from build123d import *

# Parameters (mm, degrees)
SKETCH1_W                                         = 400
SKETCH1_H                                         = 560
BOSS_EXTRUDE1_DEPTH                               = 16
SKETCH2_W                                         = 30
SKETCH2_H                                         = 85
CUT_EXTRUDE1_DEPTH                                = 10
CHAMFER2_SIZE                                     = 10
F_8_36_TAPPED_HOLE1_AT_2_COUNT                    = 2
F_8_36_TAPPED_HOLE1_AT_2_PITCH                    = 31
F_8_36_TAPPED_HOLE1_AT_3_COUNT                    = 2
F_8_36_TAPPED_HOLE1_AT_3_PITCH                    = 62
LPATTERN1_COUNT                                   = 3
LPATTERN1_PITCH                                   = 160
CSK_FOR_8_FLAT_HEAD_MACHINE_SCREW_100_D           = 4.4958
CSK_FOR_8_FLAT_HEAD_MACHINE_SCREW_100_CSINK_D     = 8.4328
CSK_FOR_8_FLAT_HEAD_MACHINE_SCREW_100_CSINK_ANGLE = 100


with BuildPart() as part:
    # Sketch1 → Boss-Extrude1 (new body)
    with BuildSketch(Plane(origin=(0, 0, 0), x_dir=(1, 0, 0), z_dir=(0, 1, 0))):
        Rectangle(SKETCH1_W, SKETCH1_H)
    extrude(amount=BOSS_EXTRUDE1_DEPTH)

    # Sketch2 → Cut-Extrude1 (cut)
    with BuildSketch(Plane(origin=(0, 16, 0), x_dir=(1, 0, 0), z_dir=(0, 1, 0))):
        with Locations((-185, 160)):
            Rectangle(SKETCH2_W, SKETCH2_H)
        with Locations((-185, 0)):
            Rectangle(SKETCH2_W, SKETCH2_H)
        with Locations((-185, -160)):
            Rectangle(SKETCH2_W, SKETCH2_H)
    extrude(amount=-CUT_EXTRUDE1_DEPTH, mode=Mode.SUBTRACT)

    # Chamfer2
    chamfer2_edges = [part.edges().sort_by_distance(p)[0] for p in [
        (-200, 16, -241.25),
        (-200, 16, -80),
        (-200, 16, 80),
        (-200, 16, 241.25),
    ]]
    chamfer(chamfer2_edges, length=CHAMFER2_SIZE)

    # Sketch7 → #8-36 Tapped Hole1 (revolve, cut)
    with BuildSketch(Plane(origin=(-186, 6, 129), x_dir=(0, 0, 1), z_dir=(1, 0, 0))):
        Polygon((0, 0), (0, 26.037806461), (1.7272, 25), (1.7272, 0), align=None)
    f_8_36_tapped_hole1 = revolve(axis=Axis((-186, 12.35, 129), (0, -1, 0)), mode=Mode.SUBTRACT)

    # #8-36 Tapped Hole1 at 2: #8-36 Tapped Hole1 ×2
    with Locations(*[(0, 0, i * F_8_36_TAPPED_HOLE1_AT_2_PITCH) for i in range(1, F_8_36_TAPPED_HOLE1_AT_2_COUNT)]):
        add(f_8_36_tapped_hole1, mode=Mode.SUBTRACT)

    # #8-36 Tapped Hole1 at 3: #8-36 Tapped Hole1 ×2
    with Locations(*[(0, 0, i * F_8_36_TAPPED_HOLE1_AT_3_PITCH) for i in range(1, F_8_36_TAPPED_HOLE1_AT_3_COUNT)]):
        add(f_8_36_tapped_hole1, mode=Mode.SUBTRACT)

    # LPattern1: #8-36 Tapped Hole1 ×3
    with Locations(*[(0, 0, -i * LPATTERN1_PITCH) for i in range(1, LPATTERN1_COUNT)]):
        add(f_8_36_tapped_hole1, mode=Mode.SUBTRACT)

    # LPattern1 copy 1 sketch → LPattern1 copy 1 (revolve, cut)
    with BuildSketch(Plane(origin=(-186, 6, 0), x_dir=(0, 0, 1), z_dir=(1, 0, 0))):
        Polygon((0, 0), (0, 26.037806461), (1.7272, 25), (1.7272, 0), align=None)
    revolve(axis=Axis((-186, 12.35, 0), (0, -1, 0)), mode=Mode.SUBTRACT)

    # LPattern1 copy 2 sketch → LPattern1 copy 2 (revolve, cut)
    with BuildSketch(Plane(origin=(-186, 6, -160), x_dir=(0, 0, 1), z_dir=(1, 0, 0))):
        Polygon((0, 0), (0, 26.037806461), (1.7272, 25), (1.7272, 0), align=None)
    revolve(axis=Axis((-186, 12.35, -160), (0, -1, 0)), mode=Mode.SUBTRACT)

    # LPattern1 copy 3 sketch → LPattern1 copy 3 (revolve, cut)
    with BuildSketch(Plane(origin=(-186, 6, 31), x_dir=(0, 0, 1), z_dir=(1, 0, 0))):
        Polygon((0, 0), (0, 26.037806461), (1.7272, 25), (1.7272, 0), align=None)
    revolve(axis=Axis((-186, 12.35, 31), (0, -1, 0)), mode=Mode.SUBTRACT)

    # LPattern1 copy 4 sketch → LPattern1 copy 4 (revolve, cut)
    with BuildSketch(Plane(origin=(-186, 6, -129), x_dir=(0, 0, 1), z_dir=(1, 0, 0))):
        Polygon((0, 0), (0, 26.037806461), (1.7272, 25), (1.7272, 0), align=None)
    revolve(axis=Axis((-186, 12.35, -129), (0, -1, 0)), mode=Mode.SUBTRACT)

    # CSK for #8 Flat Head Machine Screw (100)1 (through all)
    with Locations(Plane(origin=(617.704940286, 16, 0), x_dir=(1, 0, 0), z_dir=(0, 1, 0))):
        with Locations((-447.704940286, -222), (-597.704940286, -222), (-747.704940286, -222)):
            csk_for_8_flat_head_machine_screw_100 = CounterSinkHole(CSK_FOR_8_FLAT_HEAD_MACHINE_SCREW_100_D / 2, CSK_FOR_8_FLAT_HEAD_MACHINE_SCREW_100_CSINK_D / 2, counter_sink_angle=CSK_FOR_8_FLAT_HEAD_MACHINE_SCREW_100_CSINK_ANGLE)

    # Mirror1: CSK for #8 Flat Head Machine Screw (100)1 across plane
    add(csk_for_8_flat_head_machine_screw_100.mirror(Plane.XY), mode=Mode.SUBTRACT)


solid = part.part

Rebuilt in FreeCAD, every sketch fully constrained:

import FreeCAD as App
import Part
import Sketcher
Q = App.Units.Quantity


def edges_at(feature, points):
    """Names of the edges that pass closest to the given points."""
    edges = feature.Shape.Edges
    near = lambda p: min(range(len(edges)), key=lambda i: edges[i].distToShape(Part.Vertex(*p))[0])
    return sorted({f"Edge{near(p) + 1}" for p in points})

doc = App.newDocument("Part")
body = doc.addObject("PartDesign::Body", "Body")

# Sketch on XZ plane
sketch1 = body.newObject("Sketcher::SketchObject", "Sketch")
sketch1.AttachmentSupport = (doc.getObject("XZ_Plane"), [""])
sketch1.MapMode = "FlatFace"
sketch1.addGeometry(Part.LineSegment(App.Vector(-200, -280, 0), App.Vector(-200, 280, 0)), False)
sketch1.addGeometry(Part.LineSegment(App.Vector(-200, 280, 0), App.Vector(200, 280, 0)), False)
sketch1.addGeometry(Part.LineSegment(App.Vector(200, 280, 0), App.Vector(200, -280, 0)), False)
sketch1.addGeometry(Part.LineSegment(App.Vector(200, -280, 0), App.Vector(-200, -280, 0)), False)
sketch1.addConstraint(Sketcher.Constraint("Coincident", 0, 2, 1, 1))
sketch1.addConstraint(Sketcher.Constraint("Coincident", 1, 2, 2, 1))
sketch1.addConstraint(Sketcher.Constraint("Coincident", 2, 2, 3, 1))
sketch1.addConstraint(Sketcher.Constraint("Coincident", 3, 2, 0, 1))
sketch1.addConstraint(Sketcher.Constraint("Vertical", 0))
sketch1.addConstraint(Sketcher.Constraint("Horizontal", 1))
sketch1.addConstraint(Sketcher.Constraint("Vertical", 2))
sketch1.addConstraint(Sketcher.Constraint("Horizontal", 3))
sketch1.addConstraint(Sketcher.Constraint("Symmetric", 0, 2, 2, 2, -1, 1))
sketch1.addConstraint(Sketcher.Constraint("DistanceX", 1, 1, 1, 2, 400.0))
sketch1.addConstraint(Sketcher.Constraint("DistanceY", 0, 1, 0, 2, 560.0))
pad1 = body.newObject("PartDesign::Pad", "Pad")
pad1.Profile = sketch1
pad1.Length = 16
pad1.Reversed = True

# Sketch on XZ plane
sketch2 = body.newObject("Sketcher::SketchObject", "Sketch001")
sketch2.AttachmentSupport = (doc.getObject("XZ_Plane"), [""])
sketch2.MapMode = "FlatFace"
sketch2.AttachmentOffset = App.Placement(App.Vector(0, 0, -16), App.Rotation())
sketch2.addGeometry(Part.LineSegment(App.Vector(-200, -202, 0), App.Vector(-200, -118, 0)), False)
sketch2.addGeometry(Part.LineSegment(App.Vector(-200, -118, 0), App.Vector(-170, -118, 0)), False)
sketch2.addGeometry(Part.LineSegment(App.Vector(-170, -118, 0), App.Vector(-170, -202, 0)), False)
sketch2.addGeometry(Part.LineSegment(App.Vector(-170, -202, 0), App.Vector(-200, -202, 0)), False)
sketch2.addGeometry(Part.LineSegment(App.Vector(-200, -42, 0), App.Vector(-200, 42, 0)), False)
sketch2.addGeometry(Part.LineSegment(App.Vector(-200, 42, 0), App.Vector(-170, 42, 0)), False)
sketch2.addGeometry(Part.LineSegment(App.Vector(-170, 42, 0), App.Vector(-170, -42, 0)), False)
sketch2.addGeometry(Part.LineSegment(App.Vector(-170, -42, 0), App.Vector(-200, -42, 0)), False)
sketch2.addGeometry(Part.LineSegment(App.Vector(-200, 118, 0), App.Vector(-200, 202, 0)), False)
sketch2.addGeometry(Part.LineSegment(App.Vector(-200, 202, 0), App.Vector(-170, 202, 0)), False)
sketch2.addGeometry(Part.LineSegment(App.Vector(-170, 202, 0), App.Vector(-170, 118, 0)), False)
sketch2.addGeometry(Part.LineSegment(App.Vector(-170, 118, 0), App.Vector(-200, 118, 0)), False)
sketch2.addConstraint(Sketcher.Constraint("Coincident", 0, 2, 1, 1))
sketch2.addConstraint(Sketcher.Constraint("Coincident", 1, 2, 2, 1))
sketch2.addConstraint(Sketcher.Constraint("Coincident", 2, 2, 3, 1))
sketch2.addConstraint(Sketcher.Constraint("Coincident", 3, 2, 0, 1))
sketch2.addConstraint(Sketcher.Constraint("Coincident", 4, 2, 5, 1))
sketch2.addConstraint(Sketcher.Constraint("Coincident", 5, 2, 6, 1))
sketch2.addConstraint(Sketcher.Constraint("Coincident", 6, 2, 7, 1))
sketch2.addConstraint(Sketcher.Constraint("Coincident", 7, 2, 4, 1))
sketch2.addConstraint(Sketcher.Constraint("Coincident", 8, 2, 9, 1))
sketch2.addConstraint(Sketcher.Constraint("Coincident", 9, 2, 10, 1))
sketch2.addConstraint(Sketcher.Constraint("Coincident", 10, 2, 11, 1))
sketch2.addConstraint(Sketcher.Constraint("Coincident", 11, 2, 8, 1))
sketch2.addConstraint(Sketcher.Constraint("Vertical", 0))
sketch2.addConstraint(Sketcher.Constraint("Horizontal", 1))
sketch2.addConstraint(Sketcher.Constraint("Vertical", 2))
sketch2.addConstraint(Sketcher.Constraint("Horizontal", 3))
sketch2.addConstraint(Sketcher.Constraint("Vertical", 4))
sketch2.addConstraint(Sketcher.Constraint("Horizontal", 5))
sketch2.addConstraint(Sketcher.Constraint("Vertical", 6))
sketch2.addConstraint(Sketcher.Constraint("Horizontal", 7))
sketch2.addConstraint(Sketcher.Constraint("Vertical", 8))
sketch2.addConstraint(Sketcher.Constraint("Horizontal", 9))
sketch2.addConstraint(Sketcher.Constraint("Vertical", 10))
sketch2.addConstraint(Sketcher.Constraint("Horizontal", 11))
sketch2.addConstraint(Sketcher.Constraint("Symmetric", 3, 2, 8, 2, -1))
sketch2.addConstraint(Sketcher.Constraint("Symmetric", 1, 2, 10, 2, -1))
sketch2.addConstraint(Sketcher.Constraint("Vertical", 3, 2, 4, 2))
sketch2.addConstraint(Sketcher.Constraint("Vertical", 2, 2, 5, 2))
sketch2.addConstraint(Sketcher.Constraint("Equal", 2, 4))
sketch2.addConstraint(Sketcher.Constraint("DistanceX", 1, 1, 1, 2, 30.0))
sketch2.addConstraint(Sketcher.Constraint("DistanceY", 0, 1, 0, 2, 85.0))
sketch2.addConstraint(Sketcher.Constraint("DistanceX", 0, 2, -1, 1, 200.0))
sketch2.addConstraint(Sketcher.Constraint("DistanceY", 0, 2, 4, 2, 160.0))
sketch2.addConstraint(Sketcher.Constraint("DistanceY", 4, 2, 8, 2, 160.0))
pocket1 = body.newObject("PartDesign::Pocket", "Pocket")
pocket1.Profile = sketch2
pocket1.Length = 10
pocket1.Reversed = True
doc.recompute()

chamfer = body.newObject("PartDesign::Chamfer", "Chamfer")
chamfer.Base = (pocket1, edges_at(pocket1, [
    (-200, 16, -241.25),
    (-200, 16, -80),
    (-200, 16, 80),
    (-200, 16, 241.25),
]))
chamfer.Size = 10

# Sketch on YZ plane
sketch3 = body.newObject("Sketcher::SketchObject", "Sketch002")
sketch3.AttachmentSupport = (doc.getObject("YZ_Plane"), [""])
sketch3.MapMode = "FlatFace"
sketch3.AttachmentOffset = App.Placement(App.Vector(0, 0, -186), App.Rotation())
sketch3.addGeometry(Part.LineSegment(App.Vector(-20, 129, 0), App.Vector(6, 129, 0)), False)
sketch3.addGeometry(Part.LineSegment(App.Vector(6, 129, 0), App.Vector(6, 130.7, 0)), False)
sketch3.addGeometry(Part.LineSegment(App.Vector(6, 130.7, 0), App.Vector(-19, 130.7, 0)), False)
sketch3.addGeometry(Part.LineSegment(App.Vector(-19, 130.7, 0), App.Vector(-20, 129, 0)), False)
sketch3.addGeometry(Part.LineSegment(App.Vector(6, 129, 0), App.Vector(-20, 129, 0)), True)  # axis
sketch3.addConstraint(Sketcher.Constraint("Coincident", 0, 2, 1, 1))
sketch3.addConstraint(Sketcher.Constraint("Coincident", 1, 2, 2, 1))
sketch3.addConstraint(Sketcher.Constraint("Coincident", 2, 2, 3, 1))
sketch3.addConstraint(Sketcher.Constraint("Coincident", 3, 2, 0, 1))
sketch3.addConstraint(Sketcher.Constraint("Horizontal", 0))
sketch3.addConstraint(Sketcher.Constraint("Vertical", 1))
sketch3.addConstraint(Sketcher.Constraint("Horizontal", 2))
sketch3.addConstraint(Sketcher.Constraint("Horizontal", 4))
sketch3.addConstraint(Sketcher.Constraint("Coincident", 4, 1, 0, 2))
sketch3.addConstraint(Sketcher.Constraint("Equal", 0, 4))
sketch3.addConstraint(Sketcher.Constraint("DistanceX", 2, 2, 2, 1, 25.0))
sketch3.addConstraint(Sketcher.Constraint("Angle", 3, Q("-121 deg")))
sketch3.addConstraint(Sketcher.Constraint("DistanceX", -1, 1, 0, 2, 6.0))
sketch3.addConstraint(Sketcher.Constraint("DistanceY", -1, 1, 0, 2, 129.0))
sketch3.addConstraint(Sketcher.Constraint("DistanceY", 1, 1, 1, 2, 1.7272))
groove = body.newObject("PartDesign::Groove", "Groove")
groove.Profile = sketch3
groove.ReferenceAxis = (sketch3, ["Axis0"])
groove.Angle = 360
doc.recompute()

linearpattern = body.newObject("PartDesign::LinearPattern", "LinearPattern")
linearpattern.Originals = [groove]
linearpattern.Direction = (doc.getObject("Z_Axis"), [""])
linearpattern.Mode = "offset"
linearpattern.Offset = 31
linearpattern.Occurrences = 2
body.Tip = linearpattern
doc.recompute()

linearpattern2 = body.newObject("PartDesign::LinearPattern", "LinearPattern001")
linearpattern2.Originals = [groove]
linearpattern2.Direction = (doc.getObject("Z_Axis"), [""])
linearpattern2.Mode = "offset"
linearpattern2.Offset = 62
linearpattern2.Occurrences = 2
body.Tip = linearpattern2
doc.recompute()

linearpattern3 = body.newObject("PartDesign::LinearPattern", "LinearPattern002")
linearpattern3.Originals = [groove]
linearpattern3.Direction = (doc.getObject("Z_Axis"), [""])
linearpattern3.Mode = "offset"
linearpattern3.Offset = 160
linearpattern3.Occurrences = 3
linearpattern3.Reversed = True
body.Tip = linearpattern3

# Sketch on YZ plane
sketch4 = body.newObject("Sketcher::SketchObject", "Sketch003")
sketch4.AttachmentSupport = (doc.getObject("YZ_Plane"), [""])
sketch4.MapMode = "FlatFace"
sketch4.AttachmentOffset = App.Placement(App.Vector(0, 0, -186), App.Rotation())
sketch4.addGeometry(Part.LineSegment(App.Vector(-20, 0, 0), App.Vector(6, 0, 0)), False)
sketch4.addGeometry(Part.LineSegment(App.Vector(6, 0, 0), App.Vector(6, 1.7, 0)), False)
sketch4.addGeometry(Part.LineSegment(App.Vector(6, 1.7, 0), App.Vector(-19, 1.7, 0)), False)
sketch4.addGeometry(Part.LineSegment(App.Vector(-19, 1.7, 0), App.Vector(-20, 0, 0)), False)
sketch4.addConstraint(Sketcher.Constraint("Coincident", 0, 2, 1, 1))
sketch4.addConstraint(Sketcher.Constraint("Coincident", 1, 2, 2, 1))
sketch4.addConstraint(Sketcher.Constraint("Coincident", 2, 2, 3, 1))
sketch4.addConstraint(Sketcher.Constraint("Coincident", 3, 2, 0, 1))
sketch4.addConstraint(Sketcher.Constraint("Horizontal", 0))
sketch4.addConstraint(Sketcher.Constraint("Vertical", 1))
sketch4.addConstraint(Sketcher.Constraint("Horizontal", 2))
sketch4.addConstraint(Sketcher.Constraint("PointOnObject", 0, 2, -1))
sketch4.addConstraint(Sketcher.Constraint("DistanceX", 2, 2, 2, 1, 25.0))
sketch4.addConstraint(Sketcher.Constraint("Angle", 3, Q("-121 deg")))
sketch4.addConstraint(Sketcher.Constraint("DistanceX", -1, 1, 0, 2, 6.0))
sketch4.addConstraint(Sketcher.Constraint("DistanceY", 1, 1, 1, 2, 1.7272))
groove2 = body.newObject("PartDesign::Groove", "Groove001")
groove2.Profile = sketch4
groove2.ReferenceAxis = (sketch4, ["H_Axis"])
groove2.Angle = 360

# Sketch on YZ plane
sketch5 = body.newObject("Sketcher::SketchObject", "Sketch004")
sketch5.AttachmentSupport = (doc.getObject("YZ_Plane"), [""])
sketch5.MapMode = "FlatFace"
sketch5.AttachmentOffset = App.Placement(App.Vector(0, 0, -186), App.Rotation())
sketch5.addGeometry(Part.LineSegment(App.Vector(-20, -160, 0), App.Vector(6, -160, 0)), False)
sketch5.addGeometry(Part.LineSegment(App.Vector(6, -160, 0), App.Vector(6, -158.3, 0)), False)
sketch5.addGeometry(Part.LineSegment(App.Vector(6, -158.3, 0), App.Vector(-19, -158.3, 0)), False)
sketch5.addGeometry(Part.LineSegment(App.Vector(-19, -158.3, 0), App.Vector(-20, -160, 0)), False)
sketch5.addGeometry(Part.LineSegment(App.Vector(6, -160, 0), App.Vector(-20, -160, 0)), True)  # axis
sketch5.addConstraint(Sketcher.Constraint("Coincident", 0, 2, 1, 1))
sketch5.addConstraint(Sketcher.Constraint("Coincident", 1, 2, 2, 1))
sketch5.addConstraint(Sketcher.Constraint("Coincident", 2, 2, 3, 1))
sketch5.addConstraint(Sketcher.Constraint("Coincident", 3, 2, 0, 1))
sketch5.addConstraint(Sketcher.Constraint("Horizontal", 0))
sketch5.addConstraint(Sketcher.Constraint("Vertical", 1))
sketch5.addConstraint(Sketcher.Constraint("Horizontal", 2))
sketch5.addConstraint(Sketcher.Constraint("Horizontal", 4))
sketch5.addConstraint(Sketcher.Constraint("Coincident", 4, 1, 0, 2))
sketch5.addConstraint(Sketcher.Constraint("Equal", 0, 4))
sketch5.addConstraint(Sketcher.Constraint("DistanceX", 2, 2, 2, 1, 25.0))
sketch5.addConstraint(Sketcher.Constraint("Angle", 3, Q("-121 deg")))
sketch5.addConstraint(Sketcher.Constraint("DistanceX", -1, 1, 0, 2, 6.0))
sketch5.addConstraint(Sketcher.Constraint("DistanceY", 0, 2, -1, 1, 160.0))
sketch5.addConstraint(Sketcher.Constraint("DistanceY", 1, 1, 1, 2, 1.7272))
groove3 = body.newObject("PartDesign::Groove", "Groove002")
groove3.Profile = sketch5
groove3.ReferenceAxis = (sketch5, ["Axis0"])
groove3.Angle = 360

# Sketch on YZ plane
sketch6 = body.newObject("Sketcher::SketchObject", "Sketch005")
sketch6.AttachmentSupport = (doc.getObject("YZ_Plane"), [""])
sketch6.MapMode = "FlatFace"
sketch6.AttachmentOffset = App.Placement(App.Vector(0, 0, -186), App.Rotation())
sketch6.addGeometry(Part.LineSegment(App.Vector(-20, 31, 0), App.Vector(6, 31, 0)), False)
sketch6.addGeometry(Part.LineSegment(App.Vector(6, 31, 0), App.Vector(6, 32.7, 0)), False)
sketch6.addGeometry(Part.LineSegment(App.Vector(6, 32.7, 0), App.Vector(-19, 32.7, 0)), False)
sketch6.addGeometry(Part.LineSegment(App.Vector(-19, 32.7, 0), App.Vector(-20, 31, 0)), False)
sketch6.addGeometry(Part.LineSegment(App.Vector(6, 31, 0), App.Vector(-20, 31, 0)), True)  # axis
sketch6.addConstraint(Sketcher.Constraint("Coincident", 0, 2, 1, 1))
sketch6.addConstraint(Sketcher.Constraint("Coincident", 1, 2, 2, 1))
sketch6.addConstraint(Sketcher.Constraint("Coincident", 2, 2, 3, 1))
sketch6.addConstraint(Sketcher.Constraint("Coincident", 3, 2, 0, 1))
sketch6.addConstraint(Sketcher.Constraint("Horizontal", 0))
sketch6.addConstraint(Sketcher.Constraint("Vertical", 1))
sketch6.addConstraint(Sketcher.Constraint("Horizontal", 2))
sketch6.addConstraint(Sketcher.Constraint("Horizontal", 4))
sketch6.addConstraint(Sketcher.Constraint("Coincident", 4, 1, 0, 2))
sketch6.addConstraint(Sketcher.Constraint("Equal", 0, 4))
sketch6.addConstraint(Sketcher.Constraint("DistanceX", 2, 2, 2, 1, 25.0))
sketch6.addConstraint(Sketcher.Constraint("Angle", 3, Q("-121 deg")))
sketch6.addConstraint(Sketcher.Constraint("DistanceX", -1, 1, 0, 2, 6.0))
sketch6.addConstraint(Sketcher.Constraint("DistanceY", -1, 1, 0, 2, 31.0))
sketch6.addConstraint(Sketcher.Constraint("DistanceY", 1, 1, 1, 2, 1.7272))
groove4 = body.newObject("PartDesign::Groove", "Groove003")
groove4.Profile = sketch6
groove4.ReferenceAxis = (sketch6, ["Axis0"])
groove4.Angle = 360

# Sketch on YZ plane
sketch7 = body.newObject("Sketcher::SketchObject", "Sketch006")
sketch7.AttachmentSupport = (doc.getObject("YZ_Plane"), [""])
sketch7.MapMode = "FlatFace"
sketch7.AttachmentOffset = App.Placement(App.Vector(0, 0, -186), App.Rotation())
sketch7.addGeometry(Part.LineSegment(App.Vector(-20, -129, 0), App.Vector(6, -129, 0)), False)
sketch7.addGeometry(Part.LineSegment(App.Vector(6, -129, 0), App.Vector(6, -127.3, 0)), False)
sketch7.addGeometry(Part.LineSegment(App.Vector(6, -127.3, 0), App.Vector(-19, -127.3, 0)), False)
sketch7.addGeometry(Part.LineSegment(App.Vector(-19, -127.3, 0), App.Vector(-20, -129, 0)), False)
sketch7.addGeometry(Part.LineSegment(App.Vector(6, -129, 0), App.Vector(-20, -129, 0)), True)  # axis
sketch7.addConstraint(Sketcher.Constraint("Coincident", 0, 2, 1, 1))
sketch7.addConstraint(Sketcher.Constraint("Coincident", 1, 2, 2, 1))
sketch7.addConstraint(Sketcher.Constraint("Coincident", 2, 2, 3, 1))
sketch7.addConstraint(Sketcher.Constraint("Coincident", 3, 2, 0, 1))
sketch7.addConstraint(Sketcher.Constraint("Horizontal", 0))
sketch7.addConstraint(Sketcher.Constraint("Vertical", 1))
sketch7.addConstraint(Sketcher.Constraint("Horizontal", 2))
sketch7.addConstraint(Sketcher.Constraint("Horizontal", 4))
sketch7.addConstraint(Sketcher.Constraint("Coincident", 4, 1, 0, 2))
sketch7.addConstraint(Sketcher.Constraint("Equal", 0, 4))
sketch7.addConstraint(Sketcher.Constraint("DistanceX", 2, 2, 2, 1, 25.0))
sketch7.addConstraint(Sketcher.Constraint("Angle", 3, Q("-121 deg")))
sketch7.addConstraint(Sketcher.Constraint("DistanceX", -1, 1, 0, 2, 6.0))
sketch7.addConstraint(Sketcher.Constraint("DistanceY", 0, 2, -1, 1, 129.0))
sketch7.addConstraint(Sketcher.Constraint("DistanceY", 1, 1, 1, 2, 1.7272))
groove5 = body.newObject("PartDesign::Groove", "Groove004")
groove5.Profile = sketch7
groove5.ReferenceAxis = (sketch7, ["Axis0"])
groove5.Angle = 360

# Sketch on XZ plane
sketch8 = body.newObject("Sketcher::SketchObject", "Sketch007")
sketch8.AttachmentSupport = (doc.getObject("XZ_Plane"), [""])
sketch8.MapMode = "FlatFace"
sketch8.AttachmentOffset = App.Placement(App.Vector(0, 0, -16), App.Rotation())
sketch8.addGeometry(Part.Circle(App.Vector(170, 222, 0), App.Vector(0, 0, 1), 2.2), False)
sketch8.addGeometry(Part.Circle(App.Vector(20, 222, 0), App.Vector(0, 0, 1), 2.2), False)
sketch8.addGeometry(Part.Circle(App.Vector(-130, 222, 0), App.Vector(0, 0, 1), 2.2), False)
sketch8.addConstraint(Sketcher.Constraint("Equal", 0, 1))
sketch8.addConstraint(Sketcher.Constraint("Equal", 1, 2))
sketch8.addConstraint(Sketcher.Constraint("Horizontal", 0, 3, 1, 3))
sketch8.addConstraint(Sketcher.Constraint("Horizontal", 1, 3, 2, 3))
sketch8.addConstraint(Sketcher.Constraint("DistanceX", -1, 1, 0, 3, 170.0))
sketch8.addConstraint(Sketcher.Constraint("DistanceY", -1, 1, 0, 3, 222.0))
sketch8.addConstraint(Sketcher.Constraint("DistanceX", -1, 1, 1, 3, 20.0))
sketch8.addConstraint(Sketcher.Constraint("DistanceX", 2, 3, -1, 1, 130.0))
sketch8.addConstraint(Sketcher.Constraint("Diameter", 0, 4.4958))
doc.recompute()
hole = body.newObject("PartDesign::Hole", "Hole")
hole.Profile = sketch8
hole.ThreadType = "None"
hole.Diameter = 4.4958
hole.DepthType = "ThroughAll"
hole.HoleCutType = "Countersink"
hole.HoleCutDiameter = 8.4328
hole.HoleCutCountersinkAngle = 100
hole.Reversed = True
doc.recompute()

mirrored = body.newObject("PartDesign::Mirrored", "Mirrored")
mirrored.Originals = [hole]
mirrored.MirrorPlane = (doc.getObject("XY_Plane"), [""])
body.Tip = mirrored

doc.recompute()
